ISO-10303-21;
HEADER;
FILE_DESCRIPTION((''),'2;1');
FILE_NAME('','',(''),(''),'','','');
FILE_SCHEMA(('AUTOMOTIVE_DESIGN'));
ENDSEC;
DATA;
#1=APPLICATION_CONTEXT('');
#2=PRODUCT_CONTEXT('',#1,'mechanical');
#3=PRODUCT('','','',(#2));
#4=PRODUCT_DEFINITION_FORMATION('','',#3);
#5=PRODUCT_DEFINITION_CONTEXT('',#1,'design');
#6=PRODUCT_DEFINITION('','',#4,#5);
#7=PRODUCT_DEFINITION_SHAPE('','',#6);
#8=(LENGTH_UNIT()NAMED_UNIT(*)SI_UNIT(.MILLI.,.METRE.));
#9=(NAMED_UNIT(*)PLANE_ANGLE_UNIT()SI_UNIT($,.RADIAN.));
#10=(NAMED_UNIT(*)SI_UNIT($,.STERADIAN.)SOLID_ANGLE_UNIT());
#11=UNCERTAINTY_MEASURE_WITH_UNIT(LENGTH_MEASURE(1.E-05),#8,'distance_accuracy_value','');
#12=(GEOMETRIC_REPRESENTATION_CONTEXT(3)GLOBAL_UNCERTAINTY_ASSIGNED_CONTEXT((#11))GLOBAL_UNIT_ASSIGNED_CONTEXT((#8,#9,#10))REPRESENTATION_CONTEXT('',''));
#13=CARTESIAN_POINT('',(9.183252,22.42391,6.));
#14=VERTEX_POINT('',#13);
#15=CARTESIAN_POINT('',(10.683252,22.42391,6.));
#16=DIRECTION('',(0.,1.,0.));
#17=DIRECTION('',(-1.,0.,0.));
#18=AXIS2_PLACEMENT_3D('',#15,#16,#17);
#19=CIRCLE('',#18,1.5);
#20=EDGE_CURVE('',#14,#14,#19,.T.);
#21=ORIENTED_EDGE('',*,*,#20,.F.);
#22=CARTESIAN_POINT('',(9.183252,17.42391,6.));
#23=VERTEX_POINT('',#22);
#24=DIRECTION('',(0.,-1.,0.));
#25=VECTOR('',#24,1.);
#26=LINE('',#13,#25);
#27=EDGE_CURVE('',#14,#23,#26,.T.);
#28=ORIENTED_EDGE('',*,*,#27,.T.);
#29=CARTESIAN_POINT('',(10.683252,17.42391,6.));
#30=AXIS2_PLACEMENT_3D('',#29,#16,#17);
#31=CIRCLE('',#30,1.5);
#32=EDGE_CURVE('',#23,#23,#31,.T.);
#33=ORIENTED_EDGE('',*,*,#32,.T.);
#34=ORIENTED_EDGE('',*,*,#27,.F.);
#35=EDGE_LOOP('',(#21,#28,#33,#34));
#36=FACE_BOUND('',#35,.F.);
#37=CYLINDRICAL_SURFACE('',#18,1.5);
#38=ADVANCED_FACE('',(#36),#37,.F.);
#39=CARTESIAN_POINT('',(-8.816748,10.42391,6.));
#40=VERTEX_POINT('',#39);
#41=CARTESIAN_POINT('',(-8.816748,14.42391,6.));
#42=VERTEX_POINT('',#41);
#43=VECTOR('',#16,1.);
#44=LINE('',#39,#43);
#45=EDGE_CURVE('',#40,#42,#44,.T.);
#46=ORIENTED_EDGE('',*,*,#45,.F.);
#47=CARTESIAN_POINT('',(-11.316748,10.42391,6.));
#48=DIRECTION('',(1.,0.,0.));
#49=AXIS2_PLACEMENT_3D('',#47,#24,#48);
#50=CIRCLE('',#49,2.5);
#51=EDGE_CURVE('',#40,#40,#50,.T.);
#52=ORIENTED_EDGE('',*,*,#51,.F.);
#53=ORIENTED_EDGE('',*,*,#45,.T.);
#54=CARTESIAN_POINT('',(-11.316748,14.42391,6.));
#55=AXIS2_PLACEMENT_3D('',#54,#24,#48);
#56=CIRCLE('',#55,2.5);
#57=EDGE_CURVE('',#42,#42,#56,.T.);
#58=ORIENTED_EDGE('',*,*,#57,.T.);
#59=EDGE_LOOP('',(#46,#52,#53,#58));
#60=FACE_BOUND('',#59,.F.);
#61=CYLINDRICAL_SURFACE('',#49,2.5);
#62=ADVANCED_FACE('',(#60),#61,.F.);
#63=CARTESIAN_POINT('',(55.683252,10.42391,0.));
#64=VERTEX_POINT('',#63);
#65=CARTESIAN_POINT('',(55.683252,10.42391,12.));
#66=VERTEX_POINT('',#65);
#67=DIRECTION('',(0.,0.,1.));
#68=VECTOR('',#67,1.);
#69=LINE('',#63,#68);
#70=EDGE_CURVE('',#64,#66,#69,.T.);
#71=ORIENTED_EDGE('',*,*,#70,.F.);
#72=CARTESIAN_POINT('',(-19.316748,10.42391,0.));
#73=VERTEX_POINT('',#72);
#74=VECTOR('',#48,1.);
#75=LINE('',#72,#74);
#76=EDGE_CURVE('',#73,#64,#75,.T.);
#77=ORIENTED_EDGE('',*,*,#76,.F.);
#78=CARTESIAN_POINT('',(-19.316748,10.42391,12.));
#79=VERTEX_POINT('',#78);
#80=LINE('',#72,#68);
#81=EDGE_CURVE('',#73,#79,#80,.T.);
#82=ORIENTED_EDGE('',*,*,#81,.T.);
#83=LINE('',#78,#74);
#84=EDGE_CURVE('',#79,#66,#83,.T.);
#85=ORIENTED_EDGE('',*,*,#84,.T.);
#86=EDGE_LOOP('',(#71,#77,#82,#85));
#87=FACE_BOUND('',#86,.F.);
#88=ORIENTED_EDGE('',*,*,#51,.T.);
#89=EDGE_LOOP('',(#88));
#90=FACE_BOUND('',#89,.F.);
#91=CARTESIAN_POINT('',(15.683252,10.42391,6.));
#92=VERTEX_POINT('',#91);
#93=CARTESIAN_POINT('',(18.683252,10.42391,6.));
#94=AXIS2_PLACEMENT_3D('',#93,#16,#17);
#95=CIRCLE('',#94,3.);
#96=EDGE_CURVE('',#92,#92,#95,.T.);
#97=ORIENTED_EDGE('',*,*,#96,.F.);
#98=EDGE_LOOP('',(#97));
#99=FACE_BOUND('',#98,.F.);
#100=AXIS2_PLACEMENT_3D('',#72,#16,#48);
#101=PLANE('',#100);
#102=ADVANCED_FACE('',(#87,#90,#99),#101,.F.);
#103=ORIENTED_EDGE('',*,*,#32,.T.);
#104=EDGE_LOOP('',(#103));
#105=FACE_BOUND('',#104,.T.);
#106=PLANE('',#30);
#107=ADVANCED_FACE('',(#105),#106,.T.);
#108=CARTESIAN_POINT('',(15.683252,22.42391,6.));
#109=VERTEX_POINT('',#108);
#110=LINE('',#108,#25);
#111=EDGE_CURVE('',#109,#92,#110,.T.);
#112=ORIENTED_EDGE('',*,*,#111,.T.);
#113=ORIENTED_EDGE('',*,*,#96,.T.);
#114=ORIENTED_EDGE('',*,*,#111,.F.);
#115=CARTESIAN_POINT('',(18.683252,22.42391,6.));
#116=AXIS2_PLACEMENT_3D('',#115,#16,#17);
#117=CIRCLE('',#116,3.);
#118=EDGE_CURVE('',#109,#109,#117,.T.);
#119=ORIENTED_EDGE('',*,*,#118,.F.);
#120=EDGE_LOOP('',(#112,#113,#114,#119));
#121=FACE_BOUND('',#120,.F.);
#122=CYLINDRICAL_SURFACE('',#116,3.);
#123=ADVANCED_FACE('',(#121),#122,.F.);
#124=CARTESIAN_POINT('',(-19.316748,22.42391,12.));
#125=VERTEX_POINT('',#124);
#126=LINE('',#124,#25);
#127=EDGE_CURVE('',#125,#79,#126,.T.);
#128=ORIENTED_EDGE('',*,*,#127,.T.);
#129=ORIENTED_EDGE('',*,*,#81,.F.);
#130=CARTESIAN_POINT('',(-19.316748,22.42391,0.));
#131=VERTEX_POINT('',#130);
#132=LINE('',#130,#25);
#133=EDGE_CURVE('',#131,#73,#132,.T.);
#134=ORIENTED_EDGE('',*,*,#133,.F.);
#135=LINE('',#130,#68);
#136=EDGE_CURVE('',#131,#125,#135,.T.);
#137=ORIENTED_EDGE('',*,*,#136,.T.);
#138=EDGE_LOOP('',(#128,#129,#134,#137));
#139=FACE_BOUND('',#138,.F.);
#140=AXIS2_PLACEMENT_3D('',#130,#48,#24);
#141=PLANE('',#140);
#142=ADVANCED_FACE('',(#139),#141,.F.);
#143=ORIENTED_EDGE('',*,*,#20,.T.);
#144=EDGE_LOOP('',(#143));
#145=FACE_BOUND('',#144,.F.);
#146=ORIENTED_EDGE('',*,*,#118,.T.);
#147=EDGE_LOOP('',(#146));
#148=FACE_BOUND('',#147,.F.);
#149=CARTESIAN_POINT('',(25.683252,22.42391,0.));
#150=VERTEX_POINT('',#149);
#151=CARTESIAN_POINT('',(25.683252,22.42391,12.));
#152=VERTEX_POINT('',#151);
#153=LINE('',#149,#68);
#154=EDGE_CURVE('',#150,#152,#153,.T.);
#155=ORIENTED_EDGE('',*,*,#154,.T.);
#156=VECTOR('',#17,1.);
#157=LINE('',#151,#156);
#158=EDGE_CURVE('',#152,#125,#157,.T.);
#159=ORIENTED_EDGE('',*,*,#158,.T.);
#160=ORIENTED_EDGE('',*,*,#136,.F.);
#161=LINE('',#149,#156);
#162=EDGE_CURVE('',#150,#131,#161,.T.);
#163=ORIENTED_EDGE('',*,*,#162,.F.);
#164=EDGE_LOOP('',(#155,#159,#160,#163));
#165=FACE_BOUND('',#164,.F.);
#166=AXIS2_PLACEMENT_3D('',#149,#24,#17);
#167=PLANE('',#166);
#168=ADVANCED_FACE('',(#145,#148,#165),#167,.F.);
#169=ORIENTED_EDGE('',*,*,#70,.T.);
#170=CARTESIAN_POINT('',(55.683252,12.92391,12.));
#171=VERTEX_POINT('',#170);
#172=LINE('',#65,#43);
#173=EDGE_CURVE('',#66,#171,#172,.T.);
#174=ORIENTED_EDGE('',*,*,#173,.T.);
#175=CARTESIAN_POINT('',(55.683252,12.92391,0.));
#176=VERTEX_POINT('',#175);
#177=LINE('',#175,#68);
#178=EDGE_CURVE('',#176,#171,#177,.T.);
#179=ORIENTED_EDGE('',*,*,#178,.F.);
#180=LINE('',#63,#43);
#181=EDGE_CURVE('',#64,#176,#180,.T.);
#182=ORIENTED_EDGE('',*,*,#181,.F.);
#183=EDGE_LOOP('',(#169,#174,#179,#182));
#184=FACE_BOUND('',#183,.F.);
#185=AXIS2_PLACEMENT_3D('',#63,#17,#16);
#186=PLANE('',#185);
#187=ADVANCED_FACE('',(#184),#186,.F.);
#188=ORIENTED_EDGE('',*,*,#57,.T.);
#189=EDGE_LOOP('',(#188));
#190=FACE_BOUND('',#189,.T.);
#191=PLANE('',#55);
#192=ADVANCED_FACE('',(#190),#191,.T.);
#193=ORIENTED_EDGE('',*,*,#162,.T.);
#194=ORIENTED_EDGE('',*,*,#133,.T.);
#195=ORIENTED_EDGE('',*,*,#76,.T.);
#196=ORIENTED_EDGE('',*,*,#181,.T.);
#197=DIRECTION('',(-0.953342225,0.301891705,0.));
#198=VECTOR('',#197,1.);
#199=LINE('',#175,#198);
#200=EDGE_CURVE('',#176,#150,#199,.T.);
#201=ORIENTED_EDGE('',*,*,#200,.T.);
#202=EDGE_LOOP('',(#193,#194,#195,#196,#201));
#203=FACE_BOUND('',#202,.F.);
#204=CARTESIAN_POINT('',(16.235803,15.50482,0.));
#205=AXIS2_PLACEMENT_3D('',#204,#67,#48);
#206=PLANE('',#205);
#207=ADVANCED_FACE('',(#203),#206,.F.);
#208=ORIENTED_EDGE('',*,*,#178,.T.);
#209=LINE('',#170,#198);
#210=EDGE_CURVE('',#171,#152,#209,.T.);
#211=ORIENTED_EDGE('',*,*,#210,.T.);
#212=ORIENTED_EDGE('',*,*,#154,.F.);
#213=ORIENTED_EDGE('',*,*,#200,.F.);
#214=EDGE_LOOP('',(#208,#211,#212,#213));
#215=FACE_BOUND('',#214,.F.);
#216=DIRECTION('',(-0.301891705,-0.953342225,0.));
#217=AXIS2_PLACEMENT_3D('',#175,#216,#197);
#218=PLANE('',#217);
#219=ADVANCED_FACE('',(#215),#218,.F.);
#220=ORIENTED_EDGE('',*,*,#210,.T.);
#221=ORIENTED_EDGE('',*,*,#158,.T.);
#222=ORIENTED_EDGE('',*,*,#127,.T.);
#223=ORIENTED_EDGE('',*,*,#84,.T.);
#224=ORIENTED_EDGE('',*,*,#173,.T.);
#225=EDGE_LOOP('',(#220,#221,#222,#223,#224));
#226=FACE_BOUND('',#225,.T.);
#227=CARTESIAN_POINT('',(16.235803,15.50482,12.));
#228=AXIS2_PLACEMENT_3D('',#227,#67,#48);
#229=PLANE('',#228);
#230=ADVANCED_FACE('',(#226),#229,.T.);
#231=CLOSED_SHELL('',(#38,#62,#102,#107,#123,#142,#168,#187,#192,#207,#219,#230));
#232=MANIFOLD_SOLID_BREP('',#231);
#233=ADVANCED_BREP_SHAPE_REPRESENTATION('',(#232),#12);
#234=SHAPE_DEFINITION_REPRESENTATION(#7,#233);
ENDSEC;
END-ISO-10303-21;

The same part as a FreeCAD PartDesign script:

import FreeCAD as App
import Part
import Sketcher

doc = App.newDocument("Part")
body = doc.addObject("PartDesign::Body", "Body")

sketch1 = doc.addObject("Sketcher::SketchObject", "Sketch")
body.addObject(sketch1)
sketch1.AttachmentSupport = (doc.XY_Plane, [""])
sketch1.MapMode = "FlatFace"
sketch1.addGeometry([
    Part.LineSegment(App.Vector(25.7, 22.4, 0), App.Vector(-19.3, 22.4, 0)),
    Part.LineSegment(App.Vector(-19.3, 22.4, 0), App.Vector(-19.3, 10.4, 0)),
    Part.LineSegment(App.Vector(-19.3, 10.4, 0), App.Vector(55.7, 10.4, 0)),
    Part.LineSegment(App.Vector(55.7, 10.4, 0), App.Vector(55.7, 12.9, 0)),
    Part.LineSegment(App.Vector(55.7, 12.9, 0), App.Vector(25.7, 22.4, 0)),
], False)
sketch1.addConstraint([
    Sketcher.Constraint("Coincident", 0, 2, 1, 1),
    Sketcher.Constraint("Coincident", 1, 2, 2, 1),
    Sketcher.Constraint("Coincident", 2, 2, 3, 1),
    Sketcher.Constraint("Coincident", 3, 2, 4, 1),
    Sketcher.Constraint("Coincident", 4, 2, 0, 1),
    Sketcher.Constraint("Horizontal", 0),
    Sketcher.Constraint("Vertical", 1),
    Sketcher.Constraint("Horizontal", 2),
    Sketcher.Constraint("Vertical", 3),
    Sketcher.Constraint("DistanceX", 0, 2, 0, 1, 45.0),
    Sketcher.Constraint("DistanceX", 2, 1, 2, 2, 75.0),
    Sketcher.Constraint("DistanceY", 1, 2, 1, 1, 12.0),
    Sketcher.Constraint("DistanceY", 3, 1, 3, 2, 2.5),
    Sketcher.Constraint("DistanceX", 0, 2, -1, 1, 19.316748),
    Sketcher.Constraint("DistanceY", -1, 1, 0, 2, 22.42391),
])
pad1 = doc.addObject("PartDesign::Pad", "Pad")
body.addObject(pad1)
pad1.Profile = sketch1
pad1.Length = 12

sketch2 = doc.addObject("Sketcher::SketchObject", "Sketch001")
body.addObject(sketch2)
sketch2.AttachmentSupport = (doc.XZ_Plane, [""])
sketch2.MapMode = "FlatFace"
sketch2.AttachmentOffset = App.Placement(App.Vector(0, 0, -22.42391), App.Rotation())
sketch2.addGeometry(Part.Circle(App.Vector(18.7, 6, 0), App.Vector(0, 0, 1), 3), False)
sketch2.addConstraint([
    Sketcher.Constraint("Diameter", 0, 6.0),
    Sketcher.Constraint("DistanceY", -1, 1, 0, 3, 6.0),
    Sketcher.Constraint("DistanceX", -1, 1, 0, 3, 18.683252),
])
pocket1 = doc.addObject("PartDesign::Pocket", "Pocket")
body.addObject(pocket1)
pocket1.Profile = sketch2
pocket1.Type = "ThroughAll"
pocket1.Reversed = True

sketch3 = doc.addObject("Sketcher::SketchObject", "Sketch002")
body.addObject(sketch3)
sketch3.AttachmentSupport = (doc.XZ_Plane, [""])
sketch3.MapMode = "FlatFace"
sketch3.AttachmentOffset = App.Placement(App.Vector(0, 0, -10.42391), App.Rotation())
sketch3.addGeometry(Part.Circle(App.Vector(-11.3, 6, 0), App.Vector(0, 0, 1), 2.5), False)
sketch3.addConstraint([
    Sketcher.Constraint("Diameter", 0, 5.0),
    Sketcher.Constraint("DistanceY", -1, 1, 0, 3, 6.0),
    Sketcher.Constraint("DistanceX", 0, 3, -1, 1, 11.316748),
])
pocket2 = doc.addObject("PartDesign::Pocket", "Pocket001")
body.addObject(pocket2)
pocket2.Profile = sketch3
pocket2.Length = 4

sketch4 = doc.addObject("Sketcher::SketchObject", "Sketch003")
body.addObject(sketch4)
sketch4.AttachmentSupport = (doc.XZ_Plane, [""])
sketch4.MapMode = "FlatFace"
sketch4.AttachmentOffset = App.Placement(App.Vector(0, 0, -22.42391), App.Rotation())
sketch4.addGeometry(Part.Circle(App.Vector(10.7, 6, 0), App.Vector(0, 0, 1), 1.5), False)
sketch4.addConstraint([
    Sketcher.Constraint("Diameter", 0, 3.0),
    Sketcher.Constraint("DistanceY", -1, 1, 0, 3, 6.0),
    Sketcher.Constraint("DistanceX", -1, 1, 0, 3, 10.683252),
])
pocket3 = doc.addObject("PartDesign::Pocket", "Pocket002")
body.addObject(pocket3)
pocket3.Profile = sketch4
pocket3.Length = 5
pocket3.Reversed = True

doc.recompute()
